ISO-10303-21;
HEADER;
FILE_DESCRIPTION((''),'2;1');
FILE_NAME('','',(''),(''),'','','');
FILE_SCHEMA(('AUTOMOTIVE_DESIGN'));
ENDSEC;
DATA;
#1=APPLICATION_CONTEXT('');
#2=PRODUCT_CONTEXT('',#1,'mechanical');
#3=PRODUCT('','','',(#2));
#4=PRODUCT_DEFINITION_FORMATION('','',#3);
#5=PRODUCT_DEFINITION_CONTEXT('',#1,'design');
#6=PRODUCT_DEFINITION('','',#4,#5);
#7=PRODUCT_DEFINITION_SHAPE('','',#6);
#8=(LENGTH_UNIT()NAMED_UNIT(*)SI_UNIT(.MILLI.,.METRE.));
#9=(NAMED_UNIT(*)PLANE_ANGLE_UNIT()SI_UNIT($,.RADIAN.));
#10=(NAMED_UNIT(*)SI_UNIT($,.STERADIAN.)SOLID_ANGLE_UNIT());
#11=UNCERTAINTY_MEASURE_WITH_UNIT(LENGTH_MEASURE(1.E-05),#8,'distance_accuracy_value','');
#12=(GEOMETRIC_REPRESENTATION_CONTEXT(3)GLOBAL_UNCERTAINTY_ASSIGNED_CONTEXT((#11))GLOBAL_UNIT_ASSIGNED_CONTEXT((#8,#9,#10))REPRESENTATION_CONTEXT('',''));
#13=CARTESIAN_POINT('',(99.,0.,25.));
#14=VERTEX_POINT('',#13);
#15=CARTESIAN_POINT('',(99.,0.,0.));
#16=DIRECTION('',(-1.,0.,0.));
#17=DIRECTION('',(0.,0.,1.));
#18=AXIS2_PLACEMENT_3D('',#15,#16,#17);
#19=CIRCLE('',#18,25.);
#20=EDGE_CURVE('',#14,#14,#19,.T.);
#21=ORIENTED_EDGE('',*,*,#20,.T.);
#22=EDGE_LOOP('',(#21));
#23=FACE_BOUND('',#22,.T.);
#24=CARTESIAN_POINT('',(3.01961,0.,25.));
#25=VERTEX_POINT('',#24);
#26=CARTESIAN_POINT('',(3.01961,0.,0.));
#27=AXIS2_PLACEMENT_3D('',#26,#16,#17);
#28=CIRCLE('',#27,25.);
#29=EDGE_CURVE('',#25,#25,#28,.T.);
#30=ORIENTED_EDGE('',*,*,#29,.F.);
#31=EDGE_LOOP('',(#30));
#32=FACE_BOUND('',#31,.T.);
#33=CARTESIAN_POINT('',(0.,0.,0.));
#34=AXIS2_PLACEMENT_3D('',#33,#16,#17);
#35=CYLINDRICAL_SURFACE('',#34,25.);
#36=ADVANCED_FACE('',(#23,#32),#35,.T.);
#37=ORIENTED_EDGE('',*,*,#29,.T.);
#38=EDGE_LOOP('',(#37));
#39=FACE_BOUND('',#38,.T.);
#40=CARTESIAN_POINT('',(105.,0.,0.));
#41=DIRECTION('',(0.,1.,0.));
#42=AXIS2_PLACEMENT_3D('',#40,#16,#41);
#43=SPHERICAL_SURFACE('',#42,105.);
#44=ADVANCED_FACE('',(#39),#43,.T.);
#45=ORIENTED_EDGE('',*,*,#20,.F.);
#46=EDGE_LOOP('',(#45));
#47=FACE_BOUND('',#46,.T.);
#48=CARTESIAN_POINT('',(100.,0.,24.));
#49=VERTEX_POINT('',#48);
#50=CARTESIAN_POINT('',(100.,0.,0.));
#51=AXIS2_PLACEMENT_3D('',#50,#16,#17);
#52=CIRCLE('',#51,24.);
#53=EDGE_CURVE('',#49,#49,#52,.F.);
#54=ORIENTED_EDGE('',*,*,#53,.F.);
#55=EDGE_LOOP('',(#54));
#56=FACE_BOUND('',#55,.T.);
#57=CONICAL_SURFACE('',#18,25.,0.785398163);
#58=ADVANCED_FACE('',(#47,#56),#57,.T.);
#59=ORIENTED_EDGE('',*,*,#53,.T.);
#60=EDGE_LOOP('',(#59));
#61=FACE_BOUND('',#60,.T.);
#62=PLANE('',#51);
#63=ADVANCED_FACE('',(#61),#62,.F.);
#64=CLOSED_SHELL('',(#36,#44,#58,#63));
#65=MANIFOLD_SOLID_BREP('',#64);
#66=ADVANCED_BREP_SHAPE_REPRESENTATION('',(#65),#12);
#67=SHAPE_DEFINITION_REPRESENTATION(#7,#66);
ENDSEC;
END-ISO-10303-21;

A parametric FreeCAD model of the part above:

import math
import FreeCAD as App
import Part
import Sketcher
Q = App.Units.Quantity


def edges_at(feature, points):
    """Names of the edges that pass closest to the given points."""
    edges = feature.Shape.Edges
    near = lambda p: min(range(len(edges)), key=lambda i: edges[i].distToShape(Part.Vertex(*p))[0])
    return sorted({f"Edge{near(p) + 1}" for p in points})

doc = App.newDocument("Part")
body = doc.addObject("PartDesign::Body", "Body")

# Sketch on XY plane
sketch1 = body.newObject("Sketcher::SketchObject", "Sketch")
sketch1.AttachmentSupport = (doc.getObject("XY_Plane"), [""])
sketch1.MapMode = "FlatFace"
sketch1.addGeometry(Part.ArcOfCircle(Part.Circle(App.Vector(105, 0, 0), App.Vector(0, 0, 1), 105), math.radians(166.23), math.radians(180)), False)
sketch1.addGeometry(Part.LineSegment(App.Vector(0, 0, 0), App.Vector(100, 0, 0)), False)
sketch1.addGeometry(Part.LineSegment(App.Vector(100, 0, 0), App.Vector(100, 25, 0)), False)
sketch1.addGeometry(Part.LineSegment(App.Vector(100, 25, 0), App.Vector(3, 25, 0)), False)
sketch1.addConstraint(Sketcher.Constraint("Coincident", 0, 2, 1, 1))
sketch1.addConstraint(Sketcher.Constraint("Coincident", 1, 2, 2, 1))
sketch1.addConstraint(Sketcher.Constraint("Coincident", 2, 2, 3, 1))
sketch1.addConstraint(Sketcher.Constraint("Coincident", 3, 2, 0, 1))
sketch1.addConstraint(Sketcher.Constraint("Horizontal", 1))
sketch1.addConstraint(Sketcher.Constraint("Vertical", 2))
sketch1.addConstraint(Sketcher.Constraint("Horizontal", 3))
sketch1.addConstraint(Sketcher.Constraint("Coincident", 0, 2, -1, 1))
sketch1.addConstraint(Sketcher.Constraint("PointOnObject", 0, 3, -1))
sketch1.addConstraint(Sketcher.Constraint("Radius", 0, Q("105 mm")))
sketch1.addConstraint(Sketcher.Constraint("DistanceX", 1, 1, 1, 2, Q("100 mm")))
sketch1.addConstraint(Sketcher.Constraint("DistanceY", 2, 1, 2, 2, Q("25 mm")))
revolution = body.newObject("PartDesign::Revolution", "Revolution")
revolution.Profile = sketch1
revolution.ReferenceAxis = (sketch1, ["H_Axis"])
revolution.Angle = 360
doc.recompute()

chamfer = body.newObject("PartDesign::Chamfer", "Chamfer")
chamfer.Base = (revolution, edges_at(revolution, [(100, 0, -25)]))
chamfer.Size = 1

doc.recompute()
